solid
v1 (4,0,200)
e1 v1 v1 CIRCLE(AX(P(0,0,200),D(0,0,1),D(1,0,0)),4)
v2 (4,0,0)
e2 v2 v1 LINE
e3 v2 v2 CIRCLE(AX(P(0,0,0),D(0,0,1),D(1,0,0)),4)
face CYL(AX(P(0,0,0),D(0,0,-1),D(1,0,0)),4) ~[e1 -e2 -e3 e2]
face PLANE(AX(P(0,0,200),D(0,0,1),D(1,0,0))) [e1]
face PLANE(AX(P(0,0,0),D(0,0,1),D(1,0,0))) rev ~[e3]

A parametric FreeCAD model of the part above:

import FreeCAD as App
import Part
import Sketcher
from FreeCAD import Vector

doc = App.newDocument("Part")
body = doc.addObject("PartDesign::Body", "Body")

sketch1 = doc.addObject("Sketcher::SketchObject", "Sketch")
body.addObject(sketch1)
sketch1.AttachmentSupport = (doc.XY_Plane, [""])
sketch1.MapMode = "FlatFace"
sketch1.addGeometry(Part.Circle(Vector(0, 0, 0), Vector(0, 0, 1), 4), False)
sketch1.addConstraint(Sketcher.Constraint("Coincident", 0, 3, -1, 1))
sketch1.addConstraint(Sketcher.Constraint("Diameter", 0, 8.0))
pad1 = doc.addObject("PartDesign::Pad", "Pad")
body.addObject(pad1)
pad1.Profile = sketch1
pad1.Length = 200

doc.recompute()
